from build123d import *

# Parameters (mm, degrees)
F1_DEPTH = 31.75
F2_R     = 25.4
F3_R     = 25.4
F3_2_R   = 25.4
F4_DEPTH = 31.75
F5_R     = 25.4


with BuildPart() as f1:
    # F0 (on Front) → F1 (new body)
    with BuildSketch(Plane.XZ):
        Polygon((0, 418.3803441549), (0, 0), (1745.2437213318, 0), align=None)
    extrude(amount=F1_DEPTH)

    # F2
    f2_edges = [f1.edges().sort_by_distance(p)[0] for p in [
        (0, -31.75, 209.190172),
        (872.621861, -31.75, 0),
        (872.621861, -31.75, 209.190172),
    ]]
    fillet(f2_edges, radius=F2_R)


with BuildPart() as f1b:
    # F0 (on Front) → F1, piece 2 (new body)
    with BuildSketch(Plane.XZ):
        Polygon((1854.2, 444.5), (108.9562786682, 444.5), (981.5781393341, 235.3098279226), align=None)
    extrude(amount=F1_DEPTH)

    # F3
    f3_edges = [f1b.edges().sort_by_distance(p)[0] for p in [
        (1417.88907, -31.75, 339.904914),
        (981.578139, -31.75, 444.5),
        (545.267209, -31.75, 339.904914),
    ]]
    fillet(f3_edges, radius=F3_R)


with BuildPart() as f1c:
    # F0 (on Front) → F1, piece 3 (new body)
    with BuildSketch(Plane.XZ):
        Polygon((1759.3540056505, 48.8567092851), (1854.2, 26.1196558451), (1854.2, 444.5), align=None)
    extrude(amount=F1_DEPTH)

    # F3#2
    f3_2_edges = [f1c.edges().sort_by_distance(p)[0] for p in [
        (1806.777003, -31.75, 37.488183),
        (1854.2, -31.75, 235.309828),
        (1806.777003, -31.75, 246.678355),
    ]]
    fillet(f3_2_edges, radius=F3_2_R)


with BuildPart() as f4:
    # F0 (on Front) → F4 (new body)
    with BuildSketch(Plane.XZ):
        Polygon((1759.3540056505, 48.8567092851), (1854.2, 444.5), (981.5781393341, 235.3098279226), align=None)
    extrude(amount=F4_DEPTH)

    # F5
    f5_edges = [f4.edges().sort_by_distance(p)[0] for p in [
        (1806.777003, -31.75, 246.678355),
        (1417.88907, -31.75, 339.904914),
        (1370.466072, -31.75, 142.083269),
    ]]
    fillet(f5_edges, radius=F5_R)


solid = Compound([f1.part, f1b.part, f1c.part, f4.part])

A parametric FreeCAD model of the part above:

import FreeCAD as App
import Part
import Sketcher
Q = App.Units.Quantity


def edges_at(feature, points):
    """Names of the edges that pass closest to the given points."""
    edges = feature.Shape.Edges
    near = lambda p: min(range(len(edges)), key=lambda i: edges[i].distToShape(Part.Vertex(*p))[0])
    return sorted({f"Edge{near(p) + 1}" for p in points})


def add_polygon(sketch, points):
    """Adds a closed chain of lines whose ends are joined by coincident constraints."""
    first, n = sketch.GeometryCount, len(points)
    for a, b in zip(points, points[1:] + points[:1]):
        sketch.addGeometry(Part.LineSegment(App.Vector(*a, 0), App.Vector(*b, 0)), False)
    for i in range(n):
        sketch.addConstraint(Sketcher.Constraint("Coincident", first + i, 2, first + (i + 1) % n, 1))

doc = App.newDocument("Part")
params = doc.addObject("Spreadsheet::Sheet", "Params")
for row, (alias, value) in enumerate([
    ("pad1_length", "1.25 in"),
    ("fillet_radius", "1 in"),
    ("pad2_length", "1.25 in"),
    ("fillet2_radius", "1 in"),
    ("pad3_length", "1.25 in"),
    ("fillet3_radius", "1 in"),
    ("pad4_length", "1.25 in"),
    ("fillet4_radius", "1 in"),
], start=1):
    params.set(f"A{row}", alias)
    params.set(f"B{row}", "=" + value)
    params.setAlias(f"B{row}", alias)

body = doc.addObject("PartDesign::Body", "Body")

# Sketch on XZ plane
sketch1 = doc.addObject("Sketcher::SketchObject", "Sketch")
body.addObject(sketch1)
sketch1.AttachmentSupport = (doc.XZ_Plane, [""])
sketch1.MapMode = "FlatFace"
add_polygon(sketch1, [(0, 418.380344), (0, 0), (1745.243721, 0)])  # lines 0-2
sketch1.addConstraint(Sketcher.Constraint("Vertical", 0))
sketch1.addConstraint(Sketcher.Constraint("Horizontal", 1))
sketch1.addConstraint(Sketcher.Constraint("Coincident", 0, 2, -1, 1))
sketch1.addConstraint(Sketcher.Constraint("DistanceX", 1, 1, 1, 2, 1745.243721))
sketch1.addConstraint(Sketcher.Constraint("Distance", 2, 1794.69155))
pad1 = doc.addObject("PartDesign::Pad", "Pad")
body.addObject(pad1)
pad1.Profile = sketch1
pad1.setExpression("Length", "Params.pad1_length")
doc.recompute()

fillet = doc.addObject("PartDesign::Fillet", "Fillet")
body.addObject(fillet)
fillet.Base = (pad1, edges_at(pad1, [(0, -31.75, 209.19), (872.622, -31.75, 0), (872.622, -31.75, 209.19)]))
fillet.setExpression("Radius", "Params.fillet_radius")
body2 = doc.addObject("PartDesign::Body", "Body001")

# Sketch on XZ plane
sketch2 = doc.addObject("Sketcher::SketchObject", "Sketch001")
body2.addObject(sketch2)
sketch2.AttachmentSupport = (doc.getObject("XZ_Plane001"), [""])
sketch2.MapMode = "FlatFace"
add_polygon(sketch2, [(1854.2, 444.5), (108.956279, 444.5), (981.578139, 235.309828)])  # lines 0-2
sketch2.addConstraint(Sketcher.Constraint("Horizontal", 0))
sketch2.addConstraint(Sketcher.Constraint("Equal", 1, 2))
sketch2.addConstraint(Sketcher.Constraint("DistanceX", -1, 1, 2, 2, Q("73 in")))
sketch2.addConstraint(Sketcher.Constraint("DistanceY", -1, 1, 0, 2, Q("17.5 in")))
sketch2.addConstraint(Sketcher.Constraint("DistanceX", 0, 2, 0, 1, 1745.243721))
sketch2.addConstraint(Sketcher.Constraint("Distance", 1, 897.345775))
pad2 = doc.addObject("PartDesign::Pad", "Pad001")
body2.addObject(pad2)
pad2.Profile = sketch2
pad2.setExpression("Length", "Params.pad2_length")
doc.recompute()

fillet2 = doc.addObject("PartDesign::Fillet", "Fillet001")
body2.addObject(fillet2)
fillet2.Base = (pad2, edges_at(pad2, [(1417.889, -31.75, 339.905), (981.578, -31.75, 444.5), (545.267, -31.75, 339.905)]))
fillet2.setExpression("Radius", "Params.fillet2_radius")
body3 = doc.addObject("PartDesign::Body", "Body002")

# Sketch on XZ plane
sketch3 = doc.addObject("Sketcher::SketchObject", "Sketch002")
body3.addObject(sketch3)
sketch3.AttachmentSupport = (doc.getObject("XZ_Plane002"), [""])
sketch3.MapMode = "FlatFace"
add_polygon(sketch3, [(1759.354006, 48.856709), (1854.2, 26.119656), (1854.2, 444.5)])  # lines 0-2
sketch3.addConstraint(Sketcher.Constraint("Vertical", 1))
sketch3.addConstraint(Sketcher.Constraint("Perpendicular", 0, 2))
sketch3.addConstraint(Sketcher.Constraint("DistanceX", -1, 1, 0, 2, Q("73 in")))
sketch3.addConstraint(Sketcher.Constraint("DistanceY", -1, 1, 1, 2, Q("17.5 in")))
sketch3.addConstraint(Sketcher.Constraint("DistanceY", 1, 1, 1, 2, 418.380344))
sketch3.addConstraint(Sketcher.Constraint("DistanceY", -1, 1, 2, 2, 48.856709))
pad3 = doc.addObject("PartDesign::Pad", "Pad002")
body3.addObject(pad3)
pad3.Profile = sketch3
pad3.setExpression("Length", "Params.pad3_length")
doc.recompute()

fillet3 = doc.addObject("PartDesign::Fillet", "Fillet002")
body3.addObject(fillet3)
fillet3.Base = (pad3, edges_at(pad3, [(1806.777, -31.75, 37.488), (1854.2, -31.75, 235.31), (1806.777, -31.75, 246.678)]))
fillet3.setExpression("Radius", "Params.fillet3_radius")
body4 = doc.addObject("PartDesign::Body", "Body003")

# Sketch on XZ plane
sketch4 = doc.addObject("Sketcher::SketchObject", "Sketch003")
body4.addObject(sketch4)
sketch4.AttachmentSupport = (doc.getObject("XZ_Plane003"), [""])
sketch4.MapMode = "FlatFace"
add_polygon(sketch4, [(1759.354006, 48.856709), (1854.2, 444.5), (981.578139, 235.309828)])  # lines 0-2
sketch4.addConstraint(Sketcher.Constraint("Perpendicular", 0, 2))
sketch4.addConstraint(Sketcher.Constraint("DistanceX", -1, 1, 0, 2, Q("73 in")))
sketch4.addConstraint(Sketcher.Constraint("DistanceY", -1, 1, 0, 2, Q("17.5 in")))
sketch4.addConstraint(Sketcher.Constraint("DistanceX", -1, 1, 1, 2, 981.578139))
sketch4.addConstraint(Sketcher.Constraint("DistanceY", -1, 1, 2, 2, 48.856709))
sketch4.addConstraint(Sketcher.Constraint("DistanceY", 2, 2, 1, 2, 186.453119))
pad4 = doc.addObject("PartDesign::Pad", "Pad003")
body4.addObject(pad4)
pad4.Profile = sketch4
pad4.setExpression("Length", "Params.pad4_length")
doc.recompute()

fillet4 = doc.addObject("PartDesign::Fillet", "Fillet003")
body4.addObject(fillet4)
fillet4.Base = (pad4, edges_at(pad4, [(1806.777, -31.75, 246.678), (1417.889, -31.75, 339.905), (1370.466, -31.75, 142.083)]))
fillet4.setExpression("Radius", "Params.fillet4_radius")

doc.recompute()
